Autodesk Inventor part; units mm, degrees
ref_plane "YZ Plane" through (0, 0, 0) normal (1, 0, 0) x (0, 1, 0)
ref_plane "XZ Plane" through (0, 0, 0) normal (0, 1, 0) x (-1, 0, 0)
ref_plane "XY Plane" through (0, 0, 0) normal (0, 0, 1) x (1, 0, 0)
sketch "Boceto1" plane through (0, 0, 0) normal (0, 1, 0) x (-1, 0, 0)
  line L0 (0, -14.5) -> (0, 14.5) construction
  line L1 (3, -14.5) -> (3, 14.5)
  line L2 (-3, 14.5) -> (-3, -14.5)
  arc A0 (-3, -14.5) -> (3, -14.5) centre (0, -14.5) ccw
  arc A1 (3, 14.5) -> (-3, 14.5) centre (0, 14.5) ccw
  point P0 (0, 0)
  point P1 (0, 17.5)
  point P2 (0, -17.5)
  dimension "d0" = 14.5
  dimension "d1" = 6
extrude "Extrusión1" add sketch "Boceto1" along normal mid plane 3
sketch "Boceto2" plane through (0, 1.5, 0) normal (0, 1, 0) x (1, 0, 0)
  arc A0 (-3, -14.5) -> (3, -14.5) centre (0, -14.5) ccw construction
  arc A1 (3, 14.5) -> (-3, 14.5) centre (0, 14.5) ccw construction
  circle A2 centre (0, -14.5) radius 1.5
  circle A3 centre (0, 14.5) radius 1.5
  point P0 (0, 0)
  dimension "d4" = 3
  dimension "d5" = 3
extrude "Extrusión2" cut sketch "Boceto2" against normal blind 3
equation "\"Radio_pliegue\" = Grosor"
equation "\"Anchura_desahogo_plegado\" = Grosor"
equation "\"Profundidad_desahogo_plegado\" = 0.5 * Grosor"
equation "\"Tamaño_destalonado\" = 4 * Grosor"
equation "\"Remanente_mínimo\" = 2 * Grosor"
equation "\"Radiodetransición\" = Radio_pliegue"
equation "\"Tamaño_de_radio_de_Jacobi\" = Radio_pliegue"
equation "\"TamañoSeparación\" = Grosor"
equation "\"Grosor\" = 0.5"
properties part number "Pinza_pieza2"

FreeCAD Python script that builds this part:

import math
import FreeCAD as App
import Part
import Sketcher
from FreeCAD import Vector

doc = App.newDocument("Part")
body = doc.addObject("PartDesign::Body", "Body")

# Sketch on XZ plane
sketch1 = body.newObject("Sketcher::SketchObject", "Sketch")
sketch1.AttachmentSupport = (doc.getObject("XZ_Plane"), [""])
sketch1.MapMode = "FlatFace"
sketch1.addGeometry([
    Part.ArcOfCircle(Part.Circle(Vector(0, -14.5, 0), Vector(0, 0, 1), 3), math.radians(180), math.radians(360)),
    Part.LineSegment(Vector(-3, -14.5, 0), Vector(-3, 14.5, 0)),
    Part.ArcOfCircle(Part.Circle(Vector(0, 14.5, 0), Vector(0, 0, 1), 3), math.radians(0), math.radians(180)),
    Part.LineSegment(Vector(3, 14.5, 0), Vector(3, -14.5, 0)),
], False)
sketch1.addConstraint([
    Sketcher.Constraint("Tangent", 0, 1, 1, 1),
    Sketcher.Constraint("Tangent", 1, 2, 2, 2),
    Sketcher.Constraint("Tangent", 2, 1, 3, 1),
    Sketcher.Constraint("Tangent", 3, 2, 0, 2),
    Sketcher.Constraint("Vertical", 1),
    Sketcher.Constraint("Vertical", 3),
    Sketcher.Constraint("Symmetric", 0, 3, 2, 3, -1, 1),
    Sketcher.Constraint("Radius", 0, 3.0),
    Sketcher.Constraint("DistanceY", 0, 3, -1, 1, 14.5),
])
pad1 = body.newObject("PartDesign::Pad", "Pad")
pad1.Profile = sketch1
pad1.Length = 3
pad1.Midplane = True

# Sketch on XZ plane
sketch2 = body.newObject("Sketcher::SketchObject", "Sketch001")
sketch2.AttachmentSupport = (doc.getObject("XZ_Plane"), [""])
sketch2.MapMode = "FlatFace"
sketch2.AttachmentOffset = App.Placement(Vector(0, 0, -1.5), App.Rotation())
sketch2.addGeometry([
    Part.Circle(Vector(0, 14.5, 0), Vector(0, 0, 1), 1.5),
    Part.Circle(Vector(0, -14.5, 0), Vector(0, 0, 1), 1.5),
], False)
sketch2.addConstraint([
    Sketcher.Constraint("Equal", 0, 1),
    Sketcher.Constraint("Symmetric", 0, 3, 1, 3, -1, 1),
    Sketcher.Constraint("PointOnObject", 0, 3, -2),
    Sketcher.Constraint("Diameter", 0, 3.0),
    Sketcher.Constraint("DistanceY", 1, 3, 0, 3, 29.0),
])
pocket1 = body.newObject("PartDesign::Pocket", "Pocket")
pocket1.Profile = sketch2
pocket1.Length = 3
pocket1.Reversed = True

doc.recompute()
